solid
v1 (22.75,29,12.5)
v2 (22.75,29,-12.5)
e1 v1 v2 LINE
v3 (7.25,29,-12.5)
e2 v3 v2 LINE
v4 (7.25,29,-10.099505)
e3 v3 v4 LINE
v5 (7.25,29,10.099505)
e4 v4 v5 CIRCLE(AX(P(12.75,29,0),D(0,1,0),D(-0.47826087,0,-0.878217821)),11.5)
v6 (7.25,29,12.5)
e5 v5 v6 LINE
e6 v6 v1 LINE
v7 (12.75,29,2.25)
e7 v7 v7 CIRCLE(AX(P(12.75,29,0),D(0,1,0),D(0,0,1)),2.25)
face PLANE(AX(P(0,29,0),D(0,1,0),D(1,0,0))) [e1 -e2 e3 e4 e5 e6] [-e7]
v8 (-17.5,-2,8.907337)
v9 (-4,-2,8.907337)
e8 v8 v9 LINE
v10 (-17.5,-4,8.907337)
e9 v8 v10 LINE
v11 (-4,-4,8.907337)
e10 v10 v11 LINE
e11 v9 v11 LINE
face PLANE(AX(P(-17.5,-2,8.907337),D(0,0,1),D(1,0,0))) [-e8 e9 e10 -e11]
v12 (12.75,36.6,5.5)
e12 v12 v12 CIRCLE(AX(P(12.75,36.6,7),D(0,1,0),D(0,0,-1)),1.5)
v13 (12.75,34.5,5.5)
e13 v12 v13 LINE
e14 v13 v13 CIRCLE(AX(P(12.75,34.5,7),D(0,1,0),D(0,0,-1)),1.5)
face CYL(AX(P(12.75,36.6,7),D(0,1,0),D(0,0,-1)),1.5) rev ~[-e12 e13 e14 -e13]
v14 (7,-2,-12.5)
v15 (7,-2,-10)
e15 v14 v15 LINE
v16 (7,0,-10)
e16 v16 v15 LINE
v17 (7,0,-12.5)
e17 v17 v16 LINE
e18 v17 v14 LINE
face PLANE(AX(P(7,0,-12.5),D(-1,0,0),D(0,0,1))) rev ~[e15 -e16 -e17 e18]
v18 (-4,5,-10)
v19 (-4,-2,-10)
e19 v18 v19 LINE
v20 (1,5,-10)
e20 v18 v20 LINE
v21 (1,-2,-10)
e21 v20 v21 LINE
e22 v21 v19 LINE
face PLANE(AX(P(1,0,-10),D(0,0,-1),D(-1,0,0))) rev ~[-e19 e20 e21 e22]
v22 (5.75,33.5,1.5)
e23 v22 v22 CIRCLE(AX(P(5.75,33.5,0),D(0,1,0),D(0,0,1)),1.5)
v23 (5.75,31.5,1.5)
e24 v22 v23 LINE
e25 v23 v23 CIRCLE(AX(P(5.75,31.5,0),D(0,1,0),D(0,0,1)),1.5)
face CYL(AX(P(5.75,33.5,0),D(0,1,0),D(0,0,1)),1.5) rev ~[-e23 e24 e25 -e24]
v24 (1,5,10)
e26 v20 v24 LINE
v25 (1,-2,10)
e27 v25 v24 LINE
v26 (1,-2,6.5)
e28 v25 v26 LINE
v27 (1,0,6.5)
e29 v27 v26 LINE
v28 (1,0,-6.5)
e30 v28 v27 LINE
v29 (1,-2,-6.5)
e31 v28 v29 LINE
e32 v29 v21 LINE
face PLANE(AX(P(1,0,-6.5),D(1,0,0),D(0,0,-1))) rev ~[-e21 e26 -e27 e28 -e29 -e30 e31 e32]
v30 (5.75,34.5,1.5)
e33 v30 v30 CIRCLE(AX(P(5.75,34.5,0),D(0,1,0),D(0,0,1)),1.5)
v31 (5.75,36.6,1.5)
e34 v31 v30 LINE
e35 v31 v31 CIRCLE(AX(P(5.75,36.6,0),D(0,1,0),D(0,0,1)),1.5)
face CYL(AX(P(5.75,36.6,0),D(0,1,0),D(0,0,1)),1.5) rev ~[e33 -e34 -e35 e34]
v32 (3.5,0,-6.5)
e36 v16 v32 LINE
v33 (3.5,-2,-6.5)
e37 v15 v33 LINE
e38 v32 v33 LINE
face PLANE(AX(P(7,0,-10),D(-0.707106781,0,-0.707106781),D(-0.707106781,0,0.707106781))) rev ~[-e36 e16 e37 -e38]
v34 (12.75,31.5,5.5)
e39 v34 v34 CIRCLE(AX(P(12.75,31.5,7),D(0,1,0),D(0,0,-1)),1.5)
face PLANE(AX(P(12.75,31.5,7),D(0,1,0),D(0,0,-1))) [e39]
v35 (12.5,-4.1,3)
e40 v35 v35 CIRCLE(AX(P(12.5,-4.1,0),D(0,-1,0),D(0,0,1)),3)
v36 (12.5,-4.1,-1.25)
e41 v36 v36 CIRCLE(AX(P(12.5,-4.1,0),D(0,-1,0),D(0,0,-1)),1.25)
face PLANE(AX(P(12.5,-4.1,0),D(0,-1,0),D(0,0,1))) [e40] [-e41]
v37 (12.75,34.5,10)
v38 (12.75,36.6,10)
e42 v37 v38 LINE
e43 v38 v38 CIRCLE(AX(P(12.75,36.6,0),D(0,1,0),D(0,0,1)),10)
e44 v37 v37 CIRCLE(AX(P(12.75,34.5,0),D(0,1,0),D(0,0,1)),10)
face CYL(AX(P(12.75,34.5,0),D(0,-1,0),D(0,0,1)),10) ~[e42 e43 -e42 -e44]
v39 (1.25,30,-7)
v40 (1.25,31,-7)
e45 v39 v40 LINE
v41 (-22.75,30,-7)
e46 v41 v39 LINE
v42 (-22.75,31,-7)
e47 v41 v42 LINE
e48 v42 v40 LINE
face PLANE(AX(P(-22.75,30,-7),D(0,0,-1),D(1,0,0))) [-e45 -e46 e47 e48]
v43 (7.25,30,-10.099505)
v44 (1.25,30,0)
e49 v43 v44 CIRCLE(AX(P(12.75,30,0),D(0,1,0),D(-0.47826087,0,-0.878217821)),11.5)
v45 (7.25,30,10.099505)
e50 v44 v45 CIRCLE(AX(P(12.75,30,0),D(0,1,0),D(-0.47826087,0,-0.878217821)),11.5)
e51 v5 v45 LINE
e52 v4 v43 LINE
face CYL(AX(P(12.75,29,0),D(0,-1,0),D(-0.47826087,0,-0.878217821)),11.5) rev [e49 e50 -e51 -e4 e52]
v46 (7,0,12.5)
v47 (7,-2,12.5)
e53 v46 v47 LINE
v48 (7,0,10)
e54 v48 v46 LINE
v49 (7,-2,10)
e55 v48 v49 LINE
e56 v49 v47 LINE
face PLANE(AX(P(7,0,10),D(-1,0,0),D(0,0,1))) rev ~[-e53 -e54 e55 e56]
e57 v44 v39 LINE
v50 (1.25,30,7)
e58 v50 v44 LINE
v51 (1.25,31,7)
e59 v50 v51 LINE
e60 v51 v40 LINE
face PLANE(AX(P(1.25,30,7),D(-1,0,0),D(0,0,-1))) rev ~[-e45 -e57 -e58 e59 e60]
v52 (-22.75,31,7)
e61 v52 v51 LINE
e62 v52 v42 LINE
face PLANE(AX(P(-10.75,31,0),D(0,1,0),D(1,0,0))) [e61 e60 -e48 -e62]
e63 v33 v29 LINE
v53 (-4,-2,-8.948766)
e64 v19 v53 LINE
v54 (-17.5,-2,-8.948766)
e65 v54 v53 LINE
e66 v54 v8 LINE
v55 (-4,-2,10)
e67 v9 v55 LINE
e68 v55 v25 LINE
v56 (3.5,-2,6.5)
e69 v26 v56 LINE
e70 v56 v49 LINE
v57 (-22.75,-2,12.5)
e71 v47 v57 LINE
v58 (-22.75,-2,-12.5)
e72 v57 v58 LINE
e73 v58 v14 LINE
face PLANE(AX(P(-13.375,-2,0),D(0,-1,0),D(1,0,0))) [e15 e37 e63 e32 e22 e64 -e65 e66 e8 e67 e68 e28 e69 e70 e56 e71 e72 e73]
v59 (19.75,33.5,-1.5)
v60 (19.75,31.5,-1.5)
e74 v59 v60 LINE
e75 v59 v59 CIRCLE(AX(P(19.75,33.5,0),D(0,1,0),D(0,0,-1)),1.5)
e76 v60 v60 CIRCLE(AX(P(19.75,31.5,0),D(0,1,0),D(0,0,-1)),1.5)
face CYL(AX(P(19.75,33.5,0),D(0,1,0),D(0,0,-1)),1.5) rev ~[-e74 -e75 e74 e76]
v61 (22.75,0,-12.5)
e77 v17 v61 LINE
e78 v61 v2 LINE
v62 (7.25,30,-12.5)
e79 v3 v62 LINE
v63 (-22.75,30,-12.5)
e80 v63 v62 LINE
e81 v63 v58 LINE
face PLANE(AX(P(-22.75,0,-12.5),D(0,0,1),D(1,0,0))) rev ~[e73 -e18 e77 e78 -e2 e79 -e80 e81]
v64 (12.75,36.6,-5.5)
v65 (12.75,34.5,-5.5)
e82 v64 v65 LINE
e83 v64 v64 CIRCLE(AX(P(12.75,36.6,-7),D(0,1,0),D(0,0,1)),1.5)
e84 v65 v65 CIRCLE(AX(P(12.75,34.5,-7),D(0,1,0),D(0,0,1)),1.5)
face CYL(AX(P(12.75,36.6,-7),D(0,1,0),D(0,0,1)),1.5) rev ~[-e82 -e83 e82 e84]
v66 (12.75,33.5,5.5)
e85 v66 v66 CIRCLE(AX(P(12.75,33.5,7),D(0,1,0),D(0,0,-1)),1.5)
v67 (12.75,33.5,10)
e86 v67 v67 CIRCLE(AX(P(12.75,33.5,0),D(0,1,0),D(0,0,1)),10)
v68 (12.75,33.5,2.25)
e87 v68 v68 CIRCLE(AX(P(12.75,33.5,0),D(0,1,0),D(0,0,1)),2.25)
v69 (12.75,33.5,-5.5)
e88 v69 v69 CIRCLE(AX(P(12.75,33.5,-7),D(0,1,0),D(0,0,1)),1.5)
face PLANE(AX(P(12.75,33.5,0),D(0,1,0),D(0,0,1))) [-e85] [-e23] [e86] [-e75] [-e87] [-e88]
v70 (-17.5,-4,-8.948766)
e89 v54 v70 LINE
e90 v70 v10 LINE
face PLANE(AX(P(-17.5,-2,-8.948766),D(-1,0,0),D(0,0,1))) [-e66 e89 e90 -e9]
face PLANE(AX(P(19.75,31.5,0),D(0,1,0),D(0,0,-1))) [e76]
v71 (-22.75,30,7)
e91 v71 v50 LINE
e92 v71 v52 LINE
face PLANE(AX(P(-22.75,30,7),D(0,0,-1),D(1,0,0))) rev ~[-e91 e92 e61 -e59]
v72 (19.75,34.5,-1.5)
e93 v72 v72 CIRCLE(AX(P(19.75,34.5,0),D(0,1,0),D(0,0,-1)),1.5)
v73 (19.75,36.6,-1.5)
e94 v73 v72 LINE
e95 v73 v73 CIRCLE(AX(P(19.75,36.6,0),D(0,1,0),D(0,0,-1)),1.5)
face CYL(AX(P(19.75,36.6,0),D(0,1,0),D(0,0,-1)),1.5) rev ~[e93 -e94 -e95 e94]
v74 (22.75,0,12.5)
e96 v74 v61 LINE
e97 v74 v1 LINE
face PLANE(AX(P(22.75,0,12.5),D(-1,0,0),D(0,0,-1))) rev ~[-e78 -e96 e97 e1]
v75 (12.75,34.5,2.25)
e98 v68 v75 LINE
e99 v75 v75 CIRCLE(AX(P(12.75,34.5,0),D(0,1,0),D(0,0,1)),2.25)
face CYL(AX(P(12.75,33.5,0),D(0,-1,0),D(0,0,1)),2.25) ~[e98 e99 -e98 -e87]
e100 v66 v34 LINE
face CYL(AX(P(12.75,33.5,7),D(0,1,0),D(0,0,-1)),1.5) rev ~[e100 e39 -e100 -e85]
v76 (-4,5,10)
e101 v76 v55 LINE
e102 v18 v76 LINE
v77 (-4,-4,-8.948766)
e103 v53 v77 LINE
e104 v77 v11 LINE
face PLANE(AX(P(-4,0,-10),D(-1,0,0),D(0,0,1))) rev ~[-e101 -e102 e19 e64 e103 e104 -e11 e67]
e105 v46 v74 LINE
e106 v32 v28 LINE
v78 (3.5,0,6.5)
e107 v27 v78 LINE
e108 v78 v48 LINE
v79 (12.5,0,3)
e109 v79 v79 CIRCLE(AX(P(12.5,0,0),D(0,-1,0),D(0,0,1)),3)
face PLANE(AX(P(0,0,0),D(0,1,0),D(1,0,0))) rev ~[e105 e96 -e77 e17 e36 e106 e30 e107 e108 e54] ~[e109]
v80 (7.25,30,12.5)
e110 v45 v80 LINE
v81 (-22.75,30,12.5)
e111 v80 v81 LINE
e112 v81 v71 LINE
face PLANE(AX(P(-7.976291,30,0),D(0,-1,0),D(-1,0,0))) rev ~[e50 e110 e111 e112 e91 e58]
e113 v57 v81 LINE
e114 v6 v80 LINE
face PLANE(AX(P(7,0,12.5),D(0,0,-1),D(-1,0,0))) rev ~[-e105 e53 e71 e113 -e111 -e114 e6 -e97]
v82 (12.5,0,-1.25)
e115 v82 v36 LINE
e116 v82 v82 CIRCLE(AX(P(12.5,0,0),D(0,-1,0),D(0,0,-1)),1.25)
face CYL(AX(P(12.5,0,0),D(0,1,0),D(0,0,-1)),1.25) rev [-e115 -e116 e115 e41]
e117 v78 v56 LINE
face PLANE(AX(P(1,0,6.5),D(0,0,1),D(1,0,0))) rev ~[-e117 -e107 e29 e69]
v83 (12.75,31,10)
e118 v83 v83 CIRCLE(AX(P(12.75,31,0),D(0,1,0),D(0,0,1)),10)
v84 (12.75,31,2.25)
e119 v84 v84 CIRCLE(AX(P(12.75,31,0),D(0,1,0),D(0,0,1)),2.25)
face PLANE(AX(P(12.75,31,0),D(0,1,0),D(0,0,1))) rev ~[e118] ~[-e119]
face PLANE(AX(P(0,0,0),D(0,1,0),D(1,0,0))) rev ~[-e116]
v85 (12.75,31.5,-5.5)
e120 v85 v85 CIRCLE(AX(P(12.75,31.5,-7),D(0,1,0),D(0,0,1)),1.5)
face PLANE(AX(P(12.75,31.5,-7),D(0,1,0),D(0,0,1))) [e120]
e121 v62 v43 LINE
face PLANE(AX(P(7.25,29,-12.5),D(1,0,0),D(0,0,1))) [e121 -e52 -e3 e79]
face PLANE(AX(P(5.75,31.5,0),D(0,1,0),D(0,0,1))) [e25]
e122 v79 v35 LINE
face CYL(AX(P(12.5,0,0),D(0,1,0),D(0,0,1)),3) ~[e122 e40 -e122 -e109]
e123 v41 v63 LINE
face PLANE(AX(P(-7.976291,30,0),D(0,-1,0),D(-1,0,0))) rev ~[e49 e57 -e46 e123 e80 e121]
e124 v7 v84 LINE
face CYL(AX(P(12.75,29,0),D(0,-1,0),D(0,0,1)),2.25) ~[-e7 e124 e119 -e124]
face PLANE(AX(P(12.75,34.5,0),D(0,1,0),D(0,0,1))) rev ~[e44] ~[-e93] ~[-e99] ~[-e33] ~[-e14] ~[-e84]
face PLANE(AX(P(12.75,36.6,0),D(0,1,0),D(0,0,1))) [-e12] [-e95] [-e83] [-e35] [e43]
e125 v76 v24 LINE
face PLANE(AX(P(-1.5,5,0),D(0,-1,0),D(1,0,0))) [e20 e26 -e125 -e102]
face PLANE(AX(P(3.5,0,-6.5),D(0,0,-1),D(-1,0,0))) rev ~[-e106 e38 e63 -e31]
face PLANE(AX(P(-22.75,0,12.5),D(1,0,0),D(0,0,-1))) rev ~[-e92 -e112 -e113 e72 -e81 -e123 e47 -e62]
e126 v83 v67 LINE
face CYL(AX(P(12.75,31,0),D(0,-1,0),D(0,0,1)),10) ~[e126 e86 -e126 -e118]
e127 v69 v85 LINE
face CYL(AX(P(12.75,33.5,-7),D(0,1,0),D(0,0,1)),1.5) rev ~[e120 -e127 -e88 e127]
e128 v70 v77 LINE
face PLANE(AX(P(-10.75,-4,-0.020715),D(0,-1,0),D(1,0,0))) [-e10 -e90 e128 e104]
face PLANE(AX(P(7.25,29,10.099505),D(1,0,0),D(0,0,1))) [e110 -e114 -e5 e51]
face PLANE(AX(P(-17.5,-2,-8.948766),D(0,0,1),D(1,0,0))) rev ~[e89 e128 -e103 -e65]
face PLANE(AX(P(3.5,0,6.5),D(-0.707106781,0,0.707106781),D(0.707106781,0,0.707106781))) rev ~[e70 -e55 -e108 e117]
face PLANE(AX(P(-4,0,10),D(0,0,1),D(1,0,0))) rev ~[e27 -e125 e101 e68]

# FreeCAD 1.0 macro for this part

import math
import FreeCAD as App
import Part
import Sketcher
from FreeCAD import Vector

doc = App.newDocument("Part")
params = doc.addObject("Spreadsheet::Sheet", "Params")
for row, (alias, value) in enumerate([
    ("sketch1_height", "25 mm"),
    ("sketch1_width", "45.5 mm"),
    ("pad1_length", "29 mm"),
    ("sketch2_radius", "11.5 mm"),
    ("sketch2_width", "30 mm"),
    ("sketch2_height", "25 mm"),
    ("pad2_length", "1 mm"),
    ("sketch3_width", "24 mm"),
    ("sketch3_height", "14 mm"),
    ("pad3_length", "1 mm"),
    ("sketch4_diameter", "4.5 mm"),
    ("pad4_length", "2 mm"),
    ("sketch5_diameter", "20 mm"),
    ("pad5_length", "2.5 mm"),
    ("sketch6_diameter", "3 mm"),
    ("pocket1_length", "2 mm"),
    ("sketch7_diameter", "4.5 mm"),
    ("pad6_length", "1 mm"),
    ("sketch8_diameter", "20 mm"),
    ("pad7_length", "2.1 mm"),
    ("sketch9_diameter", "3 mm"),
    ("pocket2_length", "2.1 mm"),
    ("sketch10_width", "5 mm"),
    ("sketch10_height", "25 mm"),
    ("sketch10_height2", "20 mm"),
    ("sketch10_height3", "3.5 mm"),
    ("sketch10_width2", "29.75 mm"),
    ("pad8_length", "2 mm"),
    ("sketch11_width", "5 mm"),
    ("sketch11_height", "20 mm"),
    ("pocket3_length", "5 mm"),
    ("sketch12_diameter", "6 mm"),
    ("sketch12_diameter2", "2.5 mm"),
    ("pad9_length", "4.1 mm"),
    ("sketch13_width", "13.5 mm"),
    ("pad10_length", "2 mm"),
], start=1):
    params.set(f"A{row}", alias)
    params.set(f"B{row}", "=" + value)
    params.setAlias(f"B{row}", alias)

body = doc.addObject("PartDesign::Body", "Body")

sketch1 = doc.addObject("Sketcher::SketchObject", "Sketch")
body.addObject(sketch1)
sketch1.AttachmentSupport = (doc.XZ_Plane, [""])
sketch1.MapMode = "FlatFace"
sketch1.addGeometry(Part.LineSegment(Vector(-23, -12, 0), Vector(-23, 12, 0)), False)
sketch1.addGeometry(Part.LineSegment(Vector(-23, 12, 0), Vector(23, 12, 0)), False)
sketch1.addGeometry(Part.LineSegment(Vector(23, 12, 0), Vector(23, -12, 0)), False)
sketch1.addGeometry(Part.LineSegment(Vector(23, -12, 0), Vector(-23, -12, 0)), False)
sketch1.addConstraint(Sketcher.Constraint("Coincident", 0, 2, 1, 1))
sketch1.addConstraint(Sketcher.Constraint("Coincident", 1, 2, 2, 1))
sketch1.addConstraint(Sketcher.Constraint("Coincident", 2, 2, 3, 1))
sketch1.addConstraint(Sketcher.Constraint("Coincident", 3, 2, 0, 1))
sketch1.addConstraint(Sketcher.Constraint("Vertical", 0))
sketch1.addConstraint(Sketcher.Constraint("Horizontal", 1))
sketch1.addConstraint(Sketcher.Constraint("Vertical", 2))
sketch1.addConstraint(Sketcher.Constraint("Horizontal", 3))
sketch1.addConstraint(Sketcher.Constraint("Symmetric", 0, 2, 2, 2, -1, 1))
sketch1.addConstraint(Sketcher.Constraint("DistanceY", 0, 1, 0, 2, 25.0))
sketch1.addConstraint(Sketcher.Constraint("DistanceX", 1, 1, 1, 2, 45.5))
sketch1.setExpression("Constraints[9]", "Params.sketch1_height")
sketch1.setExpression("Constraints[10]", "Params.sketch1_width")
pad1 = doc.addObject("PartDesign::Pad", "Pad")
body.addObject(pad1)
pad1.Profile = sketch1
pad1.setExpression("Length", "Params.pad1_length")
pad1.Reversed = True

sketch2 = doc.addObject("Sketcher::SketchObject", "Sketch001")
body.addObject(sketch2)
sketch2.AttachmentSupport = (doc.XZ_Plane, [""])
sketch2.MapMode = "FlatFace"
sketch2.AttachmentOffset = App.Placement(Vector(0, 0, -29), App.Rotation())
sketch2.addGeometry(Part.LineSegment(Vector(7.2, -12.5, 0), Vector(-22.8, -12.5, 0)), False)
sketch2.addGeometry(Part.LineSegment(Vector(-22.8, -12.5, 0), Vector(-22.8, 12.5, 0)), False)
sketch2.addGeometry(Part.LineSegment(Vector(-22.8, 12.5, 0), Vector(7.2, 12.5, 0)), False)
sketch2.addGeometry(Part.LineSegment(Vector(7.2, 12.5, 0), Vector(7.2, 10.1, 0)), False)
sketch2.addGeometry(Part.ArcOfCircle(Part.Circle(Vector(12.7, 0, 0), Vector(0, 0, 1), 11.5), math.radians(119), math.radians(241)), False)
sketch2.addGeometry(Part.LineSegment(Vector(7.2, -10.1, 0), Vector(7.2, -12.5, 0)), False)
sketch2.addConstraint(Sketcher.Constraint("Coincident", 0, 2, 1, 1))
sketch2.addConstraint(Sketcher.Constraint("Coincident", 1, 2, 2, 1))
sketch2.addConstraint(Sketcher.Constraint("Coincident", 2, 2, 3, 1))
sketch2.addConstraint(Sketcher.Constraint("Coincident", 3, 2, 4, 1))
sketch2.addConstraint(Sketcher.Constraint("Coincident", 4, 2, 5, 1))
sketch2.addConstraint(Sketcher.Constraint("Coincident", 5, 2, 0, 1))
sketch2.addConstraint(Sketcher.Constraint("Horizontal", 0))
sketch2.addConstraint(Sketcher.Constraint("Vertical", 1))
sketch2.addConstraint(Sketcher.Constraint("Horizontal", 2))
sketch2.addConstraint(Sketcher.Constraint("Vertical", 3))
sketch2.addConstraint(Sketcher.Constraint("Vertical", 5))
sketch2.addConstraint(Sketcher.Constraint("Symmetric", 3, 2, 4, 2, -1))
sketch2.addConstraint(Sketcher.Constraint("Equal", 3, 5))
sketch2.addConstraint(Sketcher.Constraint("Radius", 4, 11.5))
sketch2.addConstraint(Sketcher.Constraint("DistanceX", 0, 2, 0, 1, 30.0))
sketch2.addConstraint(Sketcher.Constraint("DistanceY", 1, 1, 1, 2, 25.0))
sketch2.addConstraint(Sketcher.Constraint("DistanceX", 0, 2, 4, 3, 35.5))
sketch2.addConstraint(Sketcher.Constraint("DistanceX", -1, 1, 4, 3, 12.75))
sketch2.setExpression("Constraints[13]", "Params.sketch2_radius")
sketch2.setExpression("Constraints[14]", "Params.sketch2_width")
sketch2.setExpression("Constraints[15]", "Params.sketch2_height")
pad2 = doc.addObject("PartDesign::Pad", "Pad001")
body.addObject(pad2)
pad2.Profile = sketch2
pad2.setExpression("Length", "Params.pad2_length")
pad2.Reversed = True

sketch3 = doc.addObject("Sketcher::SketchObject", "Sketch002")
body.addObject(sketch3)
sketch3.AttachmentSupport = (doc.XZ_Plane, [""])
sketch3.MapMode = "FlatFace"
sketch3.AttachmentOffset = App.Placement(Vector(0, 0, -30), App.Rotation())
sketch3.addGeometry(Part.LineSegment(Vector(-23, -7, 0), Vector(-23, 7, 0)), False)
sketch3.addGeometry(Part.LineSegment(Vector(-23, 7, 0), Vector(1, 7, 0)), False)
sketch3.addGeometry(Part.LineSegment(Vector(1, 7, 0), Vector(1, -7, 0)), False)
sketch3.addGeometry(Part.LineSegment(Vector(1, -7, 0), Vector(-23, -7, 0)), False)
sketch3.addConstraint(Sketcher.Constraint("Coincident", 0, 2, 1, 1))
sketch3.addConstraint(Sketcher.Constraint("Coincident", 1, 2, 2, 1))
sketch3.addConstraint(Sketcher.Constraint("Coincident", 2, 2, 3, 1))
sketch3.addConstraint(Sketcher.Constraint("Coincident", 3, 2, 0, 1))
sketch3.addConstraint(Sketcher.Constraint("Vertical", 0))
sketch3.addConstraint(Sketcher.Constraint("Horizontal", 1))
sketch3.addConstraint(Sketcher.Constraint("Vertical", 2))
sketch3.addConstraint(Sketcher.Constraint("Horizontal", 3))
sketch3.addConstraint(Sketcher.Constraint("DistanceX", 1, 1, 1, 2, 24.0))
sketch3.addConstraint(Sketcher.Constraint("DistanceY", 0, 1, 0, 2, 14.0))
sketch3.addConstraint(Sketcher.Constraint("DistanceY", -1, 1, 0, 2, 7.0))
sketch3.addConstraint(Sketcher.Constraint("DistanceX", 0, 2, -1, 1, 22.75))
sketch3.setExpression("Constraints[8]", "Params.sketch3_width")
sketch3.setExpression("Constraints[9]", "Params.sketch3_height")
pad3 = doc.addObject("PartDesign::Pad", "Pad002")
body.addObject(pad3)
pad3.Profile = sketch3
pad3.setExpression("Length", "Params.pad3_length")
pad3.Reversed = True

sketch4 = doc.addObject("Sketcher::SketchObject", "Sketch003")
body.addObject(sketch4)
sketch4.AttachmentSupport = (doc.XZ_Plane, [""])
sketch4.MapMode = "FlatFace"
sketch4.AttachmentOffset = App.Placement(Vector(0, 0, -29), App.Rotation())
sketch4.addGeometry(Part.Circle(Vector(12.8, 0, 0), Vector(0, 0, 1), 2.2), False)
sketch4.addConstraint(Sketcher.Constraint("PointOnObject", 0, 3, -1))
sketch4.addConstraint(Sketcher.Constraint("Diameter", 0, 4.5))
sketch4.addConstraint(Sketcher.Constraint("DistanceX", -1, 1, 0, 3, 12.75))
sketch4.setExpression("Constraints[1]", "Params.sketch4_diameter")
pad4 = doc.addObject("PartDesign::Pad", "Pad003")
body.addObject(pad4)
pad4.Profile = sketch4
pad4.setExpression("Length", "Params.pad4_length")
pad4.Reversed = True

sketch5 = doc.addObject("Sketcher::SketchObject", "Sketch004")
body.addObject(sketch5)
sketch5.AttachmentSupport = (doc.XZ_Plane, [""])
sketch5.MapMode = "FlatFace"
sketch5.AttachmentOffset = App.Placement(Vector(0, 0, -31), App.Rotation())
sketch5.addGeometry(Part.Circle(Vector(13, 0, 0), Vector(0, 0, 1), 10), False)
sketch5.addConstraint(Sketcher.Constraint("PointOnObject", 0, 3, -1))
sketch5.addConstraint(Sketcher.Constraint("Diameter", 0, 20.0))
sketch5.addConstraint(Sketcher.Constraint("DistanceX", -1, 1, 0, 3, 12.75))
sketch5.setExpression("Constraints[1]", "Params.sketch5_diameter")
pad5 = doc.addObject("PartDesign::Pad", "Pad004")
body.addObject(pad5)
pad5.Profile = sketch5
pad5.setExpression("Length", "Params.pad5_length")
pad5.Reversed = True

sketch6 = doc.addObject("Sketcher::SketchObject", "Sketch005")
body.addObject(sketch6)
sketch6.AttachmentSupport = (doc.XZ_Plane, [""])
sketch6.MapMode = "FlatFace"
sketch6.AttachmentOffset = App.Placement(Vector(0, 0, -33.5), App.Rotation())
sketch6.addGeometry(Part.Circle(Vector(12.8, -7, 0), Vector(0, 0, 1), 1.5), False)
sketch6.addGeometry(Part.Circle(Vector(12.8, 7, 0), Vector(0, 0, 1), 1.5), False)
sketch6.addGeometry(Part.Circle(Vector(5.8, 0, 0), Vector(0, 0, 1), 1.5), False)
sketch6.addGeometry(Part.Circle(Vector(19.8, 0, 0), Vector(0, 0, 1), 1.5), False)
sketch6.addConstraint(Sketcher.Constraint("Equal", 0, 1))
sketch6.addConstraint(Sketcher.Constraint("Equal", 1, 2))
sketch6.addConstraint(Sketcher.Constraint("Equal", 2, 3))
sketch6.addConstraint(Sketcher.Constraint("Symmetric", 0, 3, 1, 3, -1))
sketch6.addConstraint(Sketcher.Constraint("PointOnObject", 2, 3, -1))
sketch6.addConstraint(Sketcher.Constraint("PointOnObject", 3, 3, -1))
sketch6.addConstraint(Sketcher.Constraint("Diameter", 0, 3.0))
sketch6.addConstraint(Sketcher.Constraint("DistanceY", 0, 3, -1, 1, 7.0))
sketch6.addConstraint(Sketcher.Constraint("DistanceX", 2, 3, 0, 3, 7.0))
sketch6.addConstraint(Sketcher.Constraint("DistanceX", 0, 3, 3, 3, 7.0))
sketch6.addConstraint(Sketcher.Constraint("DistanceX", -1, 1, 0, 3, 12.75))
sketch6.setExpression("Constraints[6]", "Params.sketch6_diameter")
pocket1 = doc.addObject("PartDesign::Pocket", "Pocket")
body.addObject(pocket1)
pocket1.Profile = sketch6
pocket1.setExpression("Length", "Params.pocket1_length")
pocket1.Reversed = True

sketch7 = doc.addObject("Sketcher::SketchObject", "Sketch006")
body.addObject(sketch7)
sketch7.AttachmentSupport = (doc.XZ_Plane, [""])
sketch7.MapMode = "FlatFace"
sketch7.AttachmentOffset = App.Placement(Vector(0, 0, -33.5), App.Rotation())
sketch7.addGeometry(Part.Circle(Vector(12.8, 0, 0), Vector(0, 0, 1), 2.2), False)
sketch7.addConstraint(Sketcher.Constraint("PointOnObject", 0, 3, -1))
sketch7.addConstraint(Sketcher.Constraint("Diameter", 0, 4.5))
sketch7.addConstraint(Sketcher.Constraint("DistanceX", -1, 1, 0, 3, 12.75))
sketch7.setExpression("Constraints[1]", "Params.sketch7_diameter")
pad6 = doc.addObject("PartDesign::Pad", "Pad005")
body.addObject(pad6)
pad6.Profile = sketch7
pad6.setExpression("Length", "Params.pad6_length")
pad6.Reversed = True

sketch8 = doc.addObject("Sketcher::SketchObject", "Sketch007")
body.addObject(sketch8)
sketch8.AttachmentSupport = (doc.XZ_Plane, [""])
sketch8.MapMode = "FlatFace"
sketch8.AttachmentOffset = App.Placement(Vector(0, 0, -34.5), App.Rotation())
sketch8.addGeometry(Part.Circle(Vector(13, 0, 0), Vector(0, 0, 1), 10), False)
sketch8.addConstraint(Sketcher.Constraint("PointOnObject", 0, 3, -1))
sketch8.addConstraint(Sketcher.Constraint("Diameter", 0, 20.0))
sketch8.addConstraint(Sketcher.Constraint("DistanceX", -1, 1, 0, 3, 12.75))
sketch8.setExpression("Constraints[1]", "Params.sketch8_diameter")
pad7 = doc.addObject("PartDesign::Pad", "Pad006")
body.addObject(pad7)
pad7.Profile = sketch8
pad7.setExpression("Length", "Params.pad7_length")
pad7.Reversed = True

sketch9 = doc.addObject("Sketcher::SketchObject", "Sketch008")
body.addObject(sketch9)
sketch9.AttachmentSupport = (doc.XZ_Plane, [""])
sketch9.MapMode = "FlatFace"
sketch9.AttachmentOffset = App.Placement(Vector(0, 0, -36.6), App.Rotation())
sketch9.addGeometry(Part.Circle(Vector(12.8, -7, 0), Vector(0, 0, 1), 1.5), False)
sketch9.addGeometry(Part.Circle(Vector(5.8, 0, 0), Vector(0, 0, 1), 1.5), False)
sketch9.addGeometry(Part.Circle(Vector(12.8, 7, 0), Vector(0, 0, 1), 1.5), False)
sketch9.addGeometry(Part.Circle(Vector(19.8, 0, 0), Vector(0, 0, 1), 1.5), False)
sketch9.addConstraint(Sketcher.Constraint("Equal", 0, 1))
sketch9.addConstraint(Sketcher.Constraint("Equal", 1, 2))
sketch9.addConstraint(Sketcher.Constraint("Equal", 2, 3))
sketch9.addConstraint(Sketcher.Constraint("Symmetric", 0, 3, 2, 3, -1))
sketch9.addConstraint(Sketcher.Constraint("PointOnObject", 1, 3, -1))
sketch9.addConstraint(Sketcher.Constraint("PointOnObject", 3, 3, -1))
sketch9.addConstraint(Sketcher.Constraint("Diameter", 0, 3.0))
sketch9.addConstraint(Sketcher.Constraint("DistanceY", 0, 3, -1, 1, 7.0))
sketch9.addConstraint(Sketcher.Constraint("DistanceX", 1, 3, 0, 3, 7.0))
sketch9.addConstraint(Sketcher.Constraint("DistanceX", 0, 3, 3, 3, 7.0))
sketch9.addConstraint(Sketcher.Constraint("DistanceX", -1, 1, 0, 3, 12.75))
sketch9.setExpression("Constraints[6]", "Params.sketch9_diameter")
pocket2 = doc.addObject("PartDesign::Pocket", "Pocket001")
body.addObject(pocket2)
pocket2.Profile = sketch9
pocket2.setExpression("Length", "Params.pocket2_length")
pocket2.Reversed = True

sketch10 = doc.addObject("Sketcher::SketchObject", "Sketch009")
body.addObject(sketch10)
sketch10.AttachmentSupport = (doc.XZ_Plane, [""])
sketch10.MapMode = "FlatFace"
sketch10.addGeometry(Part.LineSegment(Vector(-22.8, 12.5, 0), Vector(-22.8, -12.5, 0)), False)
sketch10.addGeometry(Part.LineSegment(Vector(-22.8, -12.5, 0), Vector(7, -12.5, 0)), False)
sketch10.addGeometry(Part.LineSegment(Vector(7, -12.5, 0), Vector(7, -10, 0)), False)
sketch10.addGeometry(Part.LineSegment(Vector(7, -10, 0), Vector(3.5, -6.5, 0)), False)
sketch10.addGeometry(Part.LineSegment(Vector(3.5, -6.5, 0), Vector(1, -6.5, 0)), False)
sketch10.addGeometry(Part.LineSegment(Vector(1, -6.5, 0), Vector(1, -10, 0)), False)
sketch10.addGeometry(Part.LineSegment(Vector(1, -10, 0), Vector(-4, -10, 0)), False)
sketch10.addGeometry(Part.LineSegment(Vector(-4, -10, 0), Vector(-4, 10, 0)), False)
sketch10.addGeometry(Part.LineSegment(Vector(-4, 10, 0), Vector(1, 10, 0)), False)
sketch10.addGeometry(Part.LineSegment(Vector(1, 10, 0), Vector(1, 6.5, 0)), False)
sketch10.addGeometry(Part.LineSegment(Vector(1, 6.5, 0), Vector(3.5, 6.5, 0)), False)
sketch10.addGeometry(Part.LineSegment(Vector(3.5, 6.5, 0), Vector(7, 10, 0)), False)
sketch10.addGeometry(Part.LineSegment(Vector(7, 10, 0), Vector(7, 12.5, 0)), False)
sketch10.addGeometry(Part.LineSegment(Vector(7, 12.5, 0), Vector(-22.8, 12.5, 0)), False)
sketch10.addConstraint(Sketcher.Constraint("Coincident", 0, 2, 1, 1))
sketch10.addConstraint(Sketcher.Constraint("Coincident", 1, 2, 2, 1))
sketch10.addConstraint(Sketcher.Constraint("Coincident", 2, 2, 3, 1))
sketch10.addConstraint(Sketcher.Constraint("Coincident", 3, 2, 4, 1))
sketch10.addConstraint(Sketcher.Constraint("Coincident", 4, 2, 5, 1))
sketch10.addConstraint(Sketcher.Constraint("Coincident", 5, 2, 6, 1))
sketch10.addConstraint(Sketcher.Constraint("Coincident", 6, 2, 7, 1))
sketch10.addConstraint(Sketcher.Constraint("Coincident", 7, 2, 8, 1))
sketch10.addConstraint(Sketcher.Constraint("Coincident", 8, 2, 9, 1))
sketch10.addConstraint(Sketcher.Constraint("Coincident", 9, 2, 10, 1))
sketch10.addConstraint(Sketcher.Constraint("Coincident", 10, 2, 11, 1))
sketch10.addConstraint(Sketcher.Constraint("Coincident", 11, 2, 12, 1))
sketch10.addConstraint(Sketcher.Constraint("Coincident", 12, 2, 13, 1))
sketch10.addConstraint(Sketcher.Constraint("Coincident", 13, 2, 0, 1))
sketch10.addConstraint(Sketcher.Constraint("Vertical", 0))
sketch10.addConstraint(Sketcher.Constraint("Horizontal", 1))
sketch10.addConstraint(Sketcher.Constraint("Vertical", 2))
sketch10.addConstraint(Sketcher.Constraint("Horizontal", 4))
sketch10.addConstraint(Sketcher.Constraint("Vertical", 5))
sketch10.addConstraint(Sketcher.Constraint("Horizontal", 6))
sketch10.addConstraint(Sketcher.Constraint("Vertical", 7))
sketch10.addConstraint(Sketcher.Constraint("Horizontal", 8))
sketch10.addConstraint(Sketcher.Constraint("Vertical", 9))
sketch10.addConstraint(Sketcher.Constraint("Horizontal", 10))
sketch10.addConstraint(Sketcher.Constraint("Vertical", 12))
sketch10.addConstraint(Sketcher.Constraint("Horizontal", 13))
sketch10.addConstraint(Sketcher.Constraint("Symmetric", 5, 2, 8, 2, -1))
sketch10.addConstraint(Sketcher.Constraint("Symmetric", 3, 2, 10, 2, -1))
sketch10.addConstraint(Sketcher.Constraint("Symmetric", 2, 2, 11, 2, -1))
sketch10.addConstraint(Sketcher.Constraint("Perpendicular", 3, 11))
sketch10.addConstraint(Sketcher.Constraint("Horizontal", 2, 2, 5, 2))
sketch10.addConstraint(Sketcher.Constraint("Equal", 10, 2))
sketch10.addConstraint(Sketcher.Constraint("Equal", 2, 12))
sketch10.addConstraint(Sketcher.Constraint("DistanceX", 6, 2, 6, 1, 5.0))
sketch10.addConstraint(Sketcher.Constraint("DistanceY", 0, 2, 0, 1, 25.0))
sketch10.addConstraint(Sketcher.Constraint("DistanceY", 7, 1, 7, 2, 20.0))
sketch10.addConstraint(Sketcher.Constraint("DistanceY", 5, 2, 5, 1, 3.5))
sketch10.addConstraint(Sketcher.Constraint("DistanceX", -1, 1, 1, 2, 7.0))
sketch10.addConstraint(Sketcher.Constraint("DistanceX", 1, 1, 1, 2, 29.75))
sketch10.setExpression("Constraints[33]", "Params.sketch10_width")
sketch10.setExpression("Constraints[34]", "Params.sketch10_height")
sketch10.setExpression("Constraints[35]", "Params.sketch10_height2")
sketch10.setExpression("Constraints[36]", "Params.sketch10_height3")
sketch10.setExpression("Constraints[38]", "Params.sketch10_width2")
pad8 = doc.addObject("PartDesign::Pad", "Pad007")
body.addObject(pad8)
pad8.Profile = sketch10
pad8.setExpression("Length", "Params.pad8_length")

sketch11 = doc.addObject("Sketcher::SketchObject", "Sketch010")
body.addObject(sketch11)
sketch11.AttachmentSupport = (doc.XZ_Plane, [""])
sketch11.MapMode = "FlatFace"
sketch11.addGeometry(Part.LineSegment(Vector(-4, 10, 0), Vector(-4, -10, 0)), False)
sketch11.addGeometry(Part.LineSegment(Vector(-4, -10, 0), Vector(1, -10, 0)), False)
sketch11.addGeometry(Part.LineSegment(Vector(1, -10, 0), Vector(1, 10, 0)), False)
sketch11.addGeometry(Part.LineSegment(Vector(1, 10, 0), Vector(-4, 10, 0)), False)
sketch11.addConstraint(Sketcher.Constraint("Coincident", 0, 2, 1, 1))
sketch11.addConstraint(Sketcher.Constraint("Coincident", 1, 2, 2, 1))
sketch11.addConstraint(Sketcher.Constraint("Coincident", 2, 2, 3, 1))
sketch11.addConstraint(Sketcher.Constraint("Coincident", 3, 2, 0, 1))
sketch11.addConstraint(Sketcher.Constraint("Vertical", 0))
sketch11.addConstraint(Sketcher.Constraint("Horizontal", 1))
sketch11.addConstraint(Sketcher.Constraint("Vertical", 2))
sketch11.addConstraint(Sketcher.Constraint("Horizontal", 3))
sketch11.addConstraint(Sketcher.Constraint("DistanceX", 1, 1, 1, 2, 5.0))
sketch11.addConstraint(Sketcher.Constraint("DistanceY", 0, 2, 0, 1, 20.0))
sketch11.addConstraint(Sketcher.Constraint("DistanceX", 0, 2, -1, 1, 4.0))
sketch11.addConstraint(Sketcher.Constraint("DistanceY", 0, 2, -1, 1, 10.0))
sketch11.setExpression("Constraints[8]", "Params.sketch11_width")
sketch11.setExpression("Constraints[9]", "Params.sketch11_height")
pocket3 = doc.addObject("PartDesign::Pocket", "Pocket002")
body.addObject(pocket3)
pocket3.Profile = sketch11
pocket3.setExpression("Length", "Params.pocket3_length")

sketch12 = doc.addObject("Sketcher::SketchObject", "Sketch011")
body.addObject(sketch12)
sketch12.AttachmentSupport = (doc.XZ_Plane, [""])
sketch12.MapMode = "FlatFace"
sketch12.addGeometry(Part.Circle(Vector(12.5, 0, 0), Vector(0, 0, 1), 3), False)
sketch12.addGeometry(Part.Circle(Vector(12.5, 0, 0), Vector(0, 0, 1), 1.2), False)
sketch12.addConstraint(Sketcher.Constraint("Coincident", 1, 3, 0, 3))
sketch12.addConstraint(Sketcher.Constraint("PointOnObject", 0, 3, -1))
sketch12.addConstraint(Sketcher.Constraint("Diameter", 0, 6.0))
sketch12.addConstraint(Sketcher.Constraint("Diameter", 1, 2.5))
sketch12.addConstraint(Sketcher.Constraint("DistanceX", -1, 1, 0, 3, 12.5))
sketch12.setExpression("Constraints[2]", "Params.sketch12_diameter")
sketch12.setExpression("Constraints[3]", "Params.sketch12_diameter2")
pad9 = doc.addObject("PartDesign::Pad", "Pad008")
body.addObject(pad9)
pad9.Profile = sketch12
pad9.setExpression("Length", "Params.pad9_length")

sketch13 = doc.addObject("Sketcher::SketchObject", "Sketch012")
body.addObject(sketch13)
sketch13.AttachmentSupport = (doc.XZ_Plane, [""])
sketch13.MapMode = "FlatFace"
sketch13.AttachmentOffset = App.Placement(Vector(0, 0, 2), App.Rotation())
sketch13.addGeometry(Part.LineSegment(Vector(-18, 9, 0), Vector(-18, -9, 0)), False)
sketch13.addGeometry(Part.LineSegment(Vector(-18, -9, 0), Vector(-4, -9, 0)), False)
sketch13.addGeometry(Part.LineSegment(Vector(-4, -9, 0), Vector(-4, 9, 0)), False)
sketch13.addGeometry(Part.LineSegment(Vector(-4, 9, 0), Vector(-18, 9, 0)), False)
sketch13.addConstraint(Sketcher.Constraint("Coincident", 0, 2, 1, 1))
sketch13.addConstraint(Sketcher.Constraint("Coincident", 1, 2, 2, 1))
sketch13.addConstraint(Sketcher.Constraint("Coincident", 2, 2, 3, 1))
sketch13.addConstraint(Sketcher.Constraint("Coincident", 3, 2, 0, 1))
sketch13.addConstraint(Sketcher.Constraint("Vertical", 0))
sketch13.addConstraint(Sketcher.Constraint("Horizontal", 1))
sketch13.addConstraint(Sketcher.Constraint("Vertical", 2))
sketch13.addConstraint(Sketcher.Constraint("Horizontal", 3))
sketch13.addConstraint(Sketcher.Constraint("DistanceX", 1, 1, 1, 2, 13.5))
sketch13.addConstraint(Sketcher.Constraint("DistanceX", 1, 2, -1, 1, 4.0))
sketch13.addConstraint(Sketcher.Constraint("DistanceY", 0, 2, 0, 1, 17.856103))
sketch13.addConstraint(Sketcher.Constraint("DistanceY", 0, 2, -1, 1, 8.948766))
sketch13.setExpression("Constraints[8]", "Params.sketch13_width")
pad10 = doc.addObject("PartDesign::Pad", "Pad009")
body.addObject(pad10)
pad10.Profile = sketch13
pad10.setExpression("Length", "Params.pad10_length")

doc.recompute()
